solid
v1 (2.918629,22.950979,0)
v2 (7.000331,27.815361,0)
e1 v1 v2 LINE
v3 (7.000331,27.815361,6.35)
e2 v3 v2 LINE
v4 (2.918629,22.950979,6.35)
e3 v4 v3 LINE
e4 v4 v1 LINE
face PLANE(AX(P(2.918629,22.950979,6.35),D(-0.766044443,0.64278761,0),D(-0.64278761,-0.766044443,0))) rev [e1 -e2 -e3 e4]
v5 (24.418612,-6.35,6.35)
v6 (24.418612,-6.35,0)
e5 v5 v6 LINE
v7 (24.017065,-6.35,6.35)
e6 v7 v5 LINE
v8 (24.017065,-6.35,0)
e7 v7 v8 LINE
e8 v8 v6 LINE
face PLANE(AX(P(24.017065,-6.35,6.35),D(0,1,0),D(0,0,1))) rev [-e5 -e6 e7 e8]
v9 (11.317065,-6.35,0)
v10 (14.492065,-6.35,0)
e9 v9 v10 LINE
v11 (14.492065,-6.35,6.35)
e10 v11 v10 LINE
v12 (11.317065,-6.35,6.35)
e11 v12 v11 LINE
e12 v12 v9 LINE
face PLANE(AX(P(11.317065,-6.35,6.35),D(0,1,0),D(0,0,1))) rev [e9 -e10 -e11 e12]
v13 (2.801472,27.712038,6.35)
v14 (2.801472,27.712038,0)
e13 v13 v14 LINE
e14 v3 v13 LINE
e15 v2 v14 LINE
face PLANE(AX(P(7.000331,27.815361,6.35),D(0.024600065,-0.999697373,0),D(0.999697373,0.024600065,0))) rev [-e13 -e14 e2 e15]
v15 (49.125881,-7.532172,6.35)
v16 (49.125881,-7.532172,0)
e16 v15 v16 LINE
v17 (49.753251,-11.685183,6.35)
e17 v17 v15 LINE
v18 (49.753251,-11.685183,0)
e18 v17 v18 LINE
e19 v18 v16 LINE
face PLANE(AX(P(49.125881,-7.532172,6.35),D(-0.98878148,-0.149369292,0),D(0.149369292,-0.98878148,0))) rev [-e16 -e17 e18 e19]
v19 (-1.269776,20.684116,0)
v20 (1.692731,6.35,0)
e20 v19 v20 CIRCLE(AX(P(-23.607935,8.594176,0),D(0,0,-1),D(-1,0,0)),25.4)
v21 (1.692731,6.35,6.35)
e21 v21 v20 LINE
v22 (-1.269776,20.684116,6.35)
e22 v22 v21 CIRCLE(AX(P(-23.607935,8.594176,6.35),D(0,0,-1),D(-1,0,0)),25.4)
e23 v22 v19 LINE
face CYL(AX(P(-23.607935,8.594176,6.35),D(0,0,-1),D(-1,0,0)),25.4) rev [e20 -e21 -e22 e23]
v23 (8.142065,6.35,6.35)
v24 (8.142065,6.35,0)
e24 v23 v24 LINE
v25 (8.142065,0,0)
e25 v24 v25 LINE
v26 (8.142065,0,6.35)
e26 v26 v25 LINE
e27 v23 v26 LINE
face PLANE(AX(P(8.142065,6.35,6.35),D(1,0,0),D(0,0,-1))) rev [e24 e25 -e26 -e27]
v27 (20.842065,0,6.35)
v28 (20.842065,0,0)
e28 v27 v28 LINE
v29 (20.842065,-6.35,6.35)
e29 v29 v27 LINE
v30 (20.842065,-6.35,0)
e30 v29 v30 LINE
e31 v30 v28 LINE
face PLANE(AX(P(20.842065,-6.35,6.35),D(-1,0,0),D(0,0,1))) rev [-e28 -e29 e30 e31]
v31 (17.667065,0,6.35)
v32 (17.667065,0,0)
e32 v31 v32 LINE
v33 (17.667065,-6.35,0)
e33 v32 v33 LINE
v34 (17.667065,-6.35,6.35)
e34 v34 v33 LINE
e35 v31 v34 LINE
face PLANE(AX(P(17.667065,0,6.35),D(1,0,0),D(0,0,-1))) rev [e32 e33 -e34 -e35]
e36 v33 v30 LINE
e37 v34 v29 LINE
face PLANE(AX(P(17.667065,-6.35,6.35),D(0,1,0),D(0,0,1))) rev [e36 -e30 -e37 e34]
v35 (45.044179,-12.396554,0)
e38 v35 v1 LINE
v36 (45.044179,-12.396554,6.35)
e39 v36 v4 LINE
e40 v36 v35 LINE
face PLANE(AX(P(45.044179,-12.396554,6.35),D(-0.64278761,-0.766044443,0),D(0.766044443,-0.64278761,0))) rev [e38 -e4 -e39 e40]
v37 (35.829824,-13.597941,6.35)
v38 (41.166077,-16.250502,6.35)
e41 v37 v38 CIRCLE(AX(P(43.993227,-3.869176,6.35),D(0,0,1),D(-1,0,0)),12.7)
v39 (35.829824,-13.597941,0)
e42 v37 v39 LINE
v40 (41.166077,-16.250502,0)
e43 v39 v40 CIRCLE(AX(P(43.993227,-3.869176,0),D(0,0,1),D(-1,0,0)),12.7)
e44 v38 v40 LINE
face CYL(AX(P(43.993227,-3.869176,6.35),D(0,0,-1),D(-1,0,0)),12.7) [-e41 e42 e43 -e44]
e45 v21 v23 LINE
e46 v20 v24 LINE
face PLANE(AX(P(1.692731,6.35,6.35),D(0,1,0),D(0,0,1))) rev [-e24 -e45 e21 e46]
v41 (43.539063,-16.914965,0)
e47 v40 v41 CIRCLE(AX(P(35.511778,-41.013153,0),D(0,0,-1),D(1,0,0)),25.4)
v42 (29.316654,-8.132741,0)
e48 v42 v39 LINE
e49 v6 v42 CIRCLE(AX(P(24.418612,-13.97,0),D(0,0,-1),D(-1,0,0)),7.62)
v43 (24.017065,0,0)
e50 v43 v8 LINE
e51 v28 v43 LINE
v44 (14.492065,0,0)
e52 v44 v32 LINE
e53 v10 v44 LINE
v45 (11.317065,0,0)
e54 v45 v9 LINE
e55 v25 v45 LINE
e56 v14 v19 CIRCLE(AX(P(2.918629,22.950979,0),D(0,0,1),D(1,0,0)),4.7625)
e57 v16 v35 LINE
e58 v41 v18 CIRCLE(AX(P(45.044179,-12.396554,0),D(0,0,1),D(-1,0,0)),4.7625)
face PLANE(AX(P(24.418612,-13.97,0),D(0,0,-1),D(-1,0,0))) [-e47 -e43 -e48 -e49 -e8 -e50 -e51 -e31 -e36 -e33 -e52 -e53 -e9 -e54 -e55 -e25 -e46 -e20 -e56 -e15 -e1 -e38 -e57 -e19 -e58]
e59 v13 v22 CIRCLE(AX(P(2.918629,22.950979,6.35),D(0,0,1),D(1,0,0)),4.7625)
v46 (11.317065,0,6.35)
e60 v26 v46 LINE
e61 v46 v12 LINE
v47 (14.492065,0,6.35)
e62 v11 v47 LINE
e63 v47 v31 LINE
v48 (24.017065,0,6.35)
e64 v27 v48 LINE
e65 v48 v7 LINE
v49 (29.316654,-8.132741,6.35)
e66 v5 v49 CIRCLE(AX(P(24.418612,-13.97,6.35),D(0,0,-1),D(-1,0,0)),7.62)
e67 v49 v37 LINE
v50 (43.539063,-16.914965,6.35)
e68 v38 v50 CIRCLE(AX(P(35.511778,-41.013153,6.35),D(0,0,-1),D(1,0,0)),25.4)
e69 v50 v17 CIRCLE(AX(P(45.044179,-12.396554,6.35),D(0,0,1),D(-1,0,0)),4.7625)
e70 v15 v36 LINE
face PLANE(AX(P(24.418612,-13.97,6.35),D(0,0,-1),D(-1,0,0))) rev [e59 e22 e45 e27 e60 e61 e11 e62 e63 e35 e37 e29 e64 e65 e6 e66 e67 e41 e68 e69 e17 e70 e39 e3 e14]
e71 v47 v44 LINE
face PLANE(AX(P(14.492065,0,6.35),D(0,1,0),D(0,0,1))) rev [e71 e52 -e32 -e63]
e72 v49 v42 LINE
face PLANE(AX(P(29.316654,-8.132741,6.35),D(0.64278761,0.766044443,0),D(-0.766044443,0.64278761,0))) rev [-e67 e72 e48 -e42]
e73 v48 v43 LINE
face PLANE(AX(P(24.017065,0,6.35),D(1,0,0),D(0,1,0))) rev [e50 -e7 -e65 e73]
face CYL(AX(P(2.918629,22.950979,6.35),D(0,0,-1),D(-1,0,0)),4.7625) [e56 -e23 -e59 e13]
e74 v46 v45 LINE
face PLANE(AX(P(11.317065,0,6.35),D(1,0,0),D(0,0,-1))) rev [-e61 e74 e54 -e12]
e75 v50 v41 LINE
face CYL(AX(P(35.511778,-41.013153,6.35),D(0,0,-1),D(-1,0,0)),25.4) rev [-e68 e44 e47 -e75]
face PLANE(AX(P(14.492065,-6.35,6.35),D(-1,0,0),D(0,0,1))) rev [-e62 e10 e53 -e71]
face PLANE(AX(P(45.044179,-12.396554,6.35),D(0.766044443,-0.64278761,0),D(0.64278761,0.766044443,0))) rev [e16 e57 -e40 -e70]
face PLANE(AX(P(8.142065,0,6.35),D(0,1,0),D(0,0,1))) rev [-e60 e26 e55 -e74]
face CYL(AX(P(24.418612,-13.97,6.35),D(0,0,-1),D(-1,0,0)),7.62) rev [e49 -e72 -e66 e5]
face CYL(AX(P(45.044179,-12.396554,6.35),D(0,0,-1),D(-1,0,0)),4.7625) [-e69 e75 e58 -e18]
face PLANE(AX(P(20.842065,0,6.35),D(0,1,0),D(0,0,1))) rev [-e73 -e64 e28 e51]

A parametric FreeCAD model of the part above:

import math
import FreeCAD as App
import Part
import Sketcher
Q = App.Units.Quantity

doc = App.newDocument("Part")
params = doc.addObject("Spreadsheet::Sheet", "Params")
for row, (alias, value) in enumerate([
    ("sketch1_radius", "1 in"),
    ("sketch1_radius2", "0.3 in"),
    ("sketch1_radius3", "0.5 in"),
    ("sketch1_radius4", "0.1875 in"),
    ("sketch1_height", "0.25 in"),
    ("pad1_length", "0.25 in"),
], start=1):
    params.set(f"A{row}", alias)
    params.set(f"B{row}", "=" + value)
    params.setAlias(f"B{row}", alias)

body = doc.addObject("PartDesign::Body", "Body")

# Sketch on XY plane
sketch1 = doc.addObject("Sketcher::SketchObject", "Sketch")
body.addObject(sketch1)
sketch1.AttachmentSupport = (doc.XY_Plane, [""])
sketch1.MapMode = "FlatFace"
sketch1.addGeometry([
    Part.LineSegment(App.Vector(8.142065, 0, 0), App.Vector(11.317065, 0, 0)),  # 0
    Part.LineSegment(App.Vector(11.317065, 0, 0), App.Vector(11.317065, -6.35, 0)),  # 1
    Part.LineSegment(App.Vector(11.317065, -6.35, 0), App.Vector(14.492065, -6.35, 0)),  # 2
    Part.LineSegment(App.Vector(14.492065, -6.35, 0), App.Vector(14.492065, 0, 0)),  # 3
    Part.LineSegment(App.Vector(14.492065, 0, 0), App.Vector(17.667065, 0, 0)),  # 4
    Part.LineSegment(App.Vector(17.667065, 0, 0), App.Vector(17.667065, -6.35, 0)),  # 5
    Part.LineSegment(App.Vector(17.667065, -6.35, 0), App.Vector(20.842065, -6.35, 0)),  # 6
    Part.LineSegment(App.Vector(20.842065, -6.35, 0), App.Vector(20.842065, 0, 0)),  # 7
    Part.LineSegment(App.Vector(20.842065, 0, 0), App.Vector(24.017065, 0, 0)),  # 8
    Part.LineSegment(App.Vector(24.017065, 0, 0), App.Vector(24.017065, -6.35, 0)),  # 9
    Part.LineSegment(App.Vector(24.017065, -6.35, 0), App.Vector(24.418612, -6.35, 0)),  # 10
    Part.ArcOfCircle(Part.Circle(App.Vector(24.418612, -13.97, 0), App.Vector(0, 0, 1), 7.62), math.radians(50), math.radians(90)),  # 11
    Part.LineSegment(App.Vector(29.316654, -8.132741, 0), App.Vector(35.829824, -13.597941, 0)),  # 12
    Part.ArcOfCircle(Part.Circle(App.Vector(43.993227, -3.869176, 0), App.Vector(0, 0, 1), 12.7), math.radians(-130), math.radians(-102.86239)),  # 13
    Part.ArcOfCircle(Part.Circle(App.Vector(35.511778, -41.013153, 0), App.Vector(0, 0, 1), 25.4), math.radians(71.576701), math.radians(77.13761)),  # 14
    Part.ArcOfCircle(Part.Circle(App.Vector(45.044179, -12.396554, 0), App.Vector(0, 0, 1), 4.7625), math.radians(-108.423299), math.radians(8.590378)),  # 15
    Part.LineSegment(App.Vector(49.753251, -11.685183, 0), App.Vector(49.125881, -7.532172, 0)),  # 16
    Part.LineSegment(App.Vector(49.125881, -7.532172, 0), App.Vector(45.044179, -12.396554, 0)),  # 17
    Part.LineSegment(App.Vector(45.044179, -12.396554, 0), App.Vector(2.918629, 22.950979, 0)),  # 18
    Part.LineSegment(App.Vector(2.918629, 22.950979, 0), App.Vector(7.000331, 27.815361, 0)),  # 19
    Part.LineSegment(App.Vector(7.000331, 27.815361, 0), App.Vector(2.801472, 27.712038, 0)),  # 20
    Part.ArcOfCircle(Part.Circle(App.Vector(2.918629, 22.950979, 0), App.Vector(0, 0, 1), 4.7625), math.radians(91.409622), math.radians(208.423299)),  # 21
    Part.ArcOfCircle(Part.Circle(App.Vector(-23.607935, 8.594176, 0), App.Vector(0, 0, 1), 25.4), math.radians(-5.068886), math.radians(28.423299)),  # 22
    Part.LineSegment(App.Vector(1.692731, 6.35, 0), App.Vector(8.142065, 6.35, 0)),  # 23
    Part.LineSegment(App.Vector(8.142065, 6.35, 0), App.Vector(8.142065, 0, 0)),  # 24
], False)
sketch1.addConstraint([
    Sketcher.Constraint("Coincident", 0, 2, 1, 1),
    Sketcher.Constraint("Coincident", 1, 2, 2, 1),
    Sketcher.Constraint("Coincident", 2, 2, 3, 1),
    Sketcher.Constraint("Coincident", 3, 2, 4, 1),
    Sketcher.Constraint("Coincident", 4, 2, 5, 1),
    Sketcher.Constraint("Coincident", 5, 2, 6, 1),
    Sketcher.Constraint("Coincident", 6, 2, 7, 1),
    Sketcher.Constraint("Coincident", 7, 2, 8, 1),
    Sketcher.Constraint("Coincident", 8, 2, 9, 1),
    Sketcher.Constraint("Coincident", 9, 2, 10, 1),
    Sketcher.Constraint("Tangent", 10, 2, 11, 2),
    Sketcher.Constraint("Tangent", 11, 1, 12, 1),
    Sketcher.Constraint("Tangent", 12, 2, 13, 1),
    Sketcher.Constraint("Tangent", 13, 2, 14, 2),
    Sketcher.Constraint("Tangent", 14, 1, 15, 1),
    Sketcher.Constraint("Tangent", 15, 2, 16, 1),
    Sketcher.Constraint("Coincident", 16, 2, 17, 1),
    Sketcher.Constraint("Coincident", 17, 2, 18, 1),
    Sketcher.Constraint("Coincident", 18, 2, 19, 1),
    Sketcher.Constraint("Coincident", 19, 2, 20, 1),
    Sketcher.Constraint("Tangent", 20, 2, 21, 1),
    Sketcher.Constraint("Tangent", 21, 2, 22, 2),
    Sketcher.Constraint("Coincident", 22, 1, 23, 1),
    Sketcher.Constraint("Coincident", 23, 2, 24, 1),
    Sketcher.Constraint("Coincident", 24, 2, 0, 1),
    Sketcher.Constraint("Horizontal", 0),
    Sketcher.Constraint("Vertical", 1),
    Sketcher.Constraint("Horizontal", 2),
    Sketcher.Constraint("Vertical", 3),
    Sketcher.Constraint("Horizontal", 4),
    Sketcher.Constraint("Vertical", 5),
    Sketcher.Constraint("Horizontal", 6),
    Sketcher.Constraint("Vertical", 7),
    Sketcher.Constraint("Horizontal", 8),
    Sketcher.Constraint("Vertical", 9),
    Sketcher.Constraint("Horizontal", 10),
    Sketcher.Constraint("Horizontal", 23),
    Sketcher.Constraint("Vertical", 24),
    Sketcher.Constraint("Coincident", 17, 2, 15, 3),
    Sketcher.Constraint("Coincident", 18, 2, 21, 3),
    Sketcher.Constraint("Equal", 15, 21),
    Sketcher.Constraint("Equal", 14, 22),
    Sketcher.Constraint("PointOnObject", 0, 2, -1),
    Sketcher.Constraint("PointOnObject", 3, 2, -1),
    Sketcher.Constraint("PointOnObject", 7, 2, -1),
    Sketcher.Constraint("Perpendicular", 12, 17),
    Sketcher.Constraint("Perpendicular", 17, 18),
    Sketcher.Constraint("Perpendicular", 18, 19),
    Sketcher.Constraint("Horizontal", 2, 2, 5, 2),
    Sketcher.Constraint("Horizontal", 6, 2, 9, 2),
    Sketcher.Constraint("Equal", 0, 2),
    Sketcher.Constraint("Equal", 2, 4),
    Sketcher.Constraint("Equal", 4, 6),
    Sketcher.Constraint("Equal", 6, 8),
    Sketcher.Constraint("Equal", 9, 24),
    Sketcher.Constraint("Equal", 17, 19),
    Sketcher.Constraint("Radius", 14, Q("1 in")),
    Sketcher.Constraint("Radius", 11, Q("0.3 in")),
    Sketcher.Constraint("Radius", 13, Q("0.5 in")),
    Sketcher.Constraint("Angle", 12, Q("-40 deg")),
    Sketcher.Constraint("Radius", 15, Q("0.1875 in")),
    Sketcher.Constraint("DistanceY", 1, 2, 1, 1, Q("0.25 in")),
    Sketcher.Constraint("Distance", 17, Q("0.25 in")),
    Sketcher.Constraint("DistanceX", 0, 1, 0, 2, Q("0.125 in")),
    Sketcher.Constraint("Distance", 18, Q("2.165 in")),
    Sketcher.Constraint("DistanceX", 22, 3, 0, 2, Q("1.375 in")),
    Sketcher.Constraint("DistanceY", 13, 2, -1, 1, 16.250502),
    Sketcher.Constraint("DistanceX", 14, 3, 15, 3, 9.532401),
    Sketcher.Constraint("DistanceY", 12, 2, 11, 1, 5.465199),
    Sketcher.Constraint("DistanceX", 22, 1, 21, 3, 1.225899),
    Sketcher.Constraint("DistanceX", -1, 1, 11, 3, 24.418612),
])
sketch1.setExpression("Constraints[56]", "Params.sketch1_radius")
sketch1.setExpression("Constraints[57]", "Params.sketch1_radius2")
sketch1.setExpression("Constraints[58]", "Params.sketch1_radius3")
sketch1.setExpression("Constraints[60]", "Params.sketch1_radius4")
sketch1.setExpression("Constraints[61]", "Params.sketch1_height")
pad1 = doc.addObject("PartDesign::Pad", "Pad")
body.addObject(pad1)
pad1.Profile = sketch1
pad1.setExpression("Length", "Params.pad1_length")

doc.recompute()
